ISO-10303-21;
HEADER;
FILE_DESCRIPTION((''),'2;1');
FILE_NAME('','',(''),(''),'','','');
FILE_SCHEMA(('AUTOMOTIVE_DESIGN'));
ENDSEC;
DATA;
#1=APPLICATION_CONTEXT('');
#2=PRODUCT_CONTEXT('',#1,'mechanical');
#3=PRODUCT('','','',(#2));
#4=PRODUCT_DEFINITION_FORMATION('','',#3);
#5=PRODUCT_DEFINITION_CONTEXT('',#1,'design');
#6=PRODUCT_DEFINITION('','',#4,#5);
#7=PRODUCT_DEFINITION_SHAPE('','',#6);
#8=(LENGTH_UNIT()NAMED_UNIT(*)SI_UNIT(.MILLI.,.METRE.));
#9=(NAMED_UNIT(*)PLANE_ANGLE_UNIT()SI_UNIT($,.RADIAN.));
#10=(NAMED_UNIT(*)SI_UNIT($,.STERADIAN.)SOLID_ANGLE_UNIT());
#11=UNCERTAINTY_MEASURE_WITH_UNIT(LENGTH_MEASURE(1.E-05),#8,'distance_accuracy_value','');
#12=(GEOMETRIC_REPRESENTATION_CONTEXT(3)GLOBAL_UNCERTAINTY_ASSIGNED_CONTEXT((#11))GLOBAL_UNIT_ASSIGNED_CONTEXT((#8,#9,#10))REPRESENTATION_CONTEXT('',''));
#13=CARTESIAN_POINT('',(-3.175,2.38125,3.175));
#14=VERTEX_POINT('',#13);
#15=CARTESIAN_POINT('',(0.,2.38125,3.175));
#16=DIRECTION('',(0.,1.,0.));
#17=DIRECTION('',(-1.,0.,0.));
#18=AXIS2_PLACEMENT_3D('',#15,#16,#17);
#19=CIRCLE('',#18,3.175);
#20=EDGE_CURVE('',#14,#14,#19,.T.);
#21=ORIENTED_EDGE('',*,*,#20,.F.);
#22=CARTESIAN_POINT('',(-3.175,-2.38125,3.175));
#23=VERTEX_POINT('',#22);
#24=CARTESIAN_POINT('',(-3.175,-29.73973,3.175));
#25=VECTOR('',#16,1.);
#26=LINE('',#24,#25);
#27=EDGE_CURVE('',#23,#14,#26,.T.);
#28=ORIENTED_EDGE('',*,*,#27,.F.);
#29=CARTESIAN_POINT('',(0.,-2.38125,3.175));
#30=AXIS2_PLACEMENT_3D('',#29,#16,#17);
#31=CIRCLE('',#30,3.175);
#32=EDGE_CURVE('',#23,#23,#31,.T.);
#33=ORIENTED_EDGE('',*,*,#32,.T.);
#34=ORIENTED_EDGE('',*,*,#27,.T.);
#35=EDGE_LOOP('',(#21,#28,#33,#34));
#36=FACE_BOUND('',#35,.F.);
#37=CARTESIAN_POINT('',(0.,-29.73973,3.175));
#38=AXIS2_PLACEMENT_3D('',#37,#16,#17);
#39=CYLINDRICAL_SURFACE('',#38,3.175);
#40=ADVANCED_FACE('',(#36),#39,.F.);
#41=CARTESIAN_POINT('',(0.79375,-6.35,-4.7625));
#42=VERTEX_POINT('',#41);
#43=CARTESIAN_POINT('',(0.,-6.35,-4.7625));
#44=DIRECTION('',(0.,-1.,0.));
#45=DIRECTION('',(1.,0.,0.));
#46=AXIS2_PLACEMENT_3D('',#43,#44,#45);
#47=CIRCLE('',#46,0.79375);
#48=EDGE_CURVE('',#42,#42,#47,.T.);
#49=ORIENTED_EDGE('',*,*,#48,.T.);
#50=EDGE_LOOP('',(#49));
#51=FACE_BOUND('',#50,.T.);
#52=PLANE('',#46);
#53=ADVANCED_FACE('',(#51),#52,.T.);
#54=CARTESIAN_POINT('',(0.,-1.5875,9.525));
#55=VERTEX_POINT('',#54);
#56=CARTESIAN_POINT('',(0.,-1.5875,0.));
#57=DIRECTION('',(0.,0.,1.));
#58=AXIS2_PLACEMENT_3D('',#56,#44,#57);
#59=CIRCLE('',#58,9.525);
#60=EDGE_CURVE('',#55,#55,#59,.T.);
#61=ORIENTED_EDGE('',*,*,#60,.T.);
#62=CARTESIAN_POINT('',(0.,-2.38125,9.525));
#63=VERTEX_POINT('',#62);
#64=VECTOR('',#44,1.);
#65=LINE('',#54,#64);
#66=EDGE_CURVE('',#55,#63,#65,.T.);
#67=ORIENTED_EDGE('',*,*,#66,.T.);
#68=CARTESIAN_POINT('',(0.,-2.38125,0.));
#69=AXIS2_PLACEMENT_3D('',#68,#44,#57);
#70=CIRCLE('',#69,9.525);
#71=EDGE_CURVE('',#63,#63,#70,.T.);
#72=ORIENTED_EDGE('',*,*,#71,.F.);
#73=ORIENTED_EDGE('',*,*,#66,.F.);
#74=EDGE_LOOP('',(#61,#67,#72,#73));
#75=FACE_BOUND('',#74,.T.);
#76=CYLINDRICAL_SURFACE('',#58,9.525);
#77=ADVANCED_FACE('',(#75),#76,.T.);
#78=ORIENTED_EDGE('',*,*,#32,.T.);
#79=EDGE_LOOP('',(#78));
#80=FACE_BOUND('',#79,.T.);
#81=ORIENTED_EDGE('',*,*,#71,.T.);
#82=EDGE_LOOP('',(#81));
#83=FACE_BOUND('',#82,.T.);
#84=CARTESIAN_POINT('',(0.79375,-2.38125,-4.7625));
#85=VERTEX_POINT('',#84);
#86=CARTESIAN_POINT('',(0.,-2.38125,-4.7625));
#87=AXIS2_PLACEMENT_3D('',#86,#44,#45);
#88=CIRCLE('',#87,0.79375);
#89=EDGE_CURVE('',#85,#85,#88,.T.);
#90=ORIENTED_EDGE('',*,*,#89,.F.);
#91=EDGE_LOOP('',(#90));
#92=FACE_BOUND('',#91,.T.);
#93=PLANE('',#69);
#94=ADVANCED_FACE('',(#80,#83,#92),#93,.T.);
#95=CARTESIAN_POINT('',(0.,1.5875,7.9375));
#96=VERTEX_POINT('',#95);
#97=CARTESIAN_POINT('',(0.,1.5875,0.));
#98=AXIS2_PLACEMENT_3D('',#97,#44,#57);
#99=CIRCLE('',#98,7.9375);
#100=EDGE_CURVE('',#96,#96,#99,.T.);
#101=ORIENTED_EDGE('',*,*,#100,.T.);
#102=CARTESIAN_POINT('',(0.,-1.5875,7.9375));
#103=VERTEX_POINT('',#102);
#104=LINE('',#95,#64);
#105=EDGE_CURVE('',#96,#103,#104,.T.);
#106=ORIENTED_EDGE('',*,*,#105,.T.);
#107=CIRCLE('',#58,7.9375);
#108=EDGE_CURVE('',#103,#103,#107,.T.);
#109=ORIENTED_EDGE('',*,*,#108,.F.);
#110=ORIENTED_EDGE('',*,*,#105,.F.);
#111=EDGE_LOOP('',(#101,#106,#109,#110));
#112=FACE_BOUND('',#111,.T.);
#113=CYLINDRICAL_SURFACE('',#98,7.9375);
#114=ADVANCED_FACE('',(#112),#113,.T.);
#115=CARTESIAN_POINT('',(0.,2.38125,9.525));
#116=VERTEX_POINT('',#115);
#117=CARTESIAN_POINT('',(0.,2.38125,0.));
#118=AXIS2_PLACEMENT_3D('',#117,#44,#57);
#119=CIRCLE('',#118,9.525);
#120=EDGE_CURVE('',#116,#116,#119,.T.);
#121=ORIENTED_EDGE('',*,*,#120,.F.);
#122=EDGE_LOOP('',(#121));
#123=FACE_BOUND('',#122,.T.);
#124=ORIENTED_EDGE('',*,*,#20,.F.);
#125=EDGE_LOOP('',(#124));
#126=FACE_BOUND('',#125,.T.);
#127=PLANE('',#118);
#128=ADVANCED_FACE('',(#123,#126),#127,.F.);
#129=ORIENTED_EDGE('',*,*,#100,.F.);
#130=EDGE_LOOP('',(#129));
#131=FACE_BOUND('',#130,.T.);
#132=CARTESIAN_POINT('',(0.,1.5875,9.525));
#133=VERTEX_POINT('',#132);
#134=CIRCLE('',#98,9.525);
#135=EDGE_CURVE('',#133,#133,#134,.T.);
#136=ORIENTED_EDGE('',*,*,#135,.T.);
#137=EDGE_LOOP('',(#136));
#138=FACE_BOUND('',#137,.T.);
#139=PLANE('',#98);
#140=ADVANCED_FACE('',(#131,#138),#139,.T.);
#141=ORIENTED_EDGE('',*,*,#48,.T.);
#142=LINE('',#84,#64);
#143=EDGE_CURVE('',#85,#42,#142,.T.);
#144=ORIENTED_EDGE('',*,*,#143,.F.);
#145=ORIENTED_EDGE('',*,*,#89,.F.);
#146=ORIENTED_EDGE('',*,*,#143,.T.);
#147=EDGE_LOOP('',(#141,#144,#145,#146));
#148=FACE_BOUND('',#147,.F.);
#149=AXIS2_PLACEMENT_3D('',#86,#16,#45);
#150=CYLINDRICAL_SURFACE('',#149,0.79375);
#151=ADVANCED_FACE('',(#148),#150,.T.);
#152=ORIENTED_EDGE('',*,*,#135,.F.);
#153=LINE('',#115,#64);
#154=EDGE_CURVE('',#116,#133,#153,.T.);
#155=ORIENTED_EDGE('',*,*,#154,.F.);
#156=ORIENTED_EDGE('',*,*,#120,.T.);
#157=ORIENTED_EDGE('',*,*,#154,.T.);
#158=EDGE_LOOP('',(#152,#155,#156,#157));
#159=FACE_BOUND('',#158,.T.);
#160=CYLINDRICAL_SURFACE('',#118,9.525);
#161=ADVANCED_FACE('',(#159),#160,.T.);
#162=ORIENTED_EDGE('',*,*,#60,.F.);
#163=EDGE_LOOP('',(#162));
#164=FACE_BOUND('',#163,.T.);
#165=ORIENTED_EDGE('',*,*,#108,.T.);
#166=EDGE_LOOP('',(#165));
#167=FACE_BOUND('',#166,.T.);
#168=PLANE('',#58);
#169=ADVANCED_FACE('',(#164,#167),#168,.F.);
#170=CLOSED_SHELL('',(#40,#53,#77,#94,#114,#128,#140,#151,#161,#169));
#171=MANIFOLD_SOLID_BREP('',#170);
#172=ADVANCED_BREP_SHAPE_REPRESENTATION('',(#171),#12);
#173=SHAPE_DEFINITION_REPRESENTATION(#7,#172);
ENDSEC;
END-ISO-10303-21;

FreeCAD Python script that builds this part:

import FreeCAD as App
import Part
import Sketcher

V = App.Vector
Q = App.Units.Quantity

doc = App.newDocument("Part")
body = doc.addObject("PartDesign::Body", "Body")

sketch1 = doc.addObject("Sketcher::SketchObject", "Sketch")
body.addObject(sketch1)
sketch1.AttachmentSupport = (doc.YZ_Plane, [""])
sketch1.MapMode = "FlatFace"
sketch1.addGeometry([
    Part.LineSegment(V(-2.38125, 9.525, 0), V(-2.38125, 0, 0)),
    Part.LineSegment(V(-2.38125, 0, 0), V(2.38125, 0, 0)),
    Part.LineSegment(V(2.38125, 0, 0), V(2.38125, 9.525, 0)),
    Part.LineSegment(V(2.38125, 9.525, 0), V(1.5875, 9.525, 0)),
    Part.LineSegment(V(1.5875, 9.525, 0), V(1.5875, 7.9375, 0)),
    Part.LineSegment(V(1.5875, 7.9375, 0), V(-1.5875, 7.9375, 0)),
    Part.LineSegment(V(-1.5875, 7.9375, 0), V(-1.5875, 9.525, 0)),
    Part.LineSegment(V(-1.5875, 9.525, 0), V(-2.38125, 9.525, 0)),
], False)
sketch1.addConstraint([
    Sketcher.Constraint("Coincident", 0, 2, 1, 1),
    Sketcher.Constraint("Coincident", 1, 2, 2, 1),
    Sketcher.Constraint("Coincident", 2, 2, 3, 1),
    Sketcher.Constraint("Coincident", 3, 2, 4, 1),
    Sketcher.Constraint("Coincident", 4, 2, 5, 1),
    Sketcher.Constraint("Coincident", 5, 2, 6, 1),
    Sketcher.Constraint("Coincident", 6, 2, 7, 1),
    Sketcher.Constraint("Coincident", 7, 2, 0, 1),
    Sketcher.Constraint("Vertical", 0),
    Sketcher.Constraint("Horizontal", 1),
    Sketcher.Constraint("Vertical", 2),
    Sketcher.Constraint("Horizontal", 3),
    Sketcher.Constraint("Vertical", 4),
    Sketcher.Constraint("Horizontal", 5),
    Sketcher.Constraint("Vertical", 6),
    Sketcher.Constraint("Horizontal", 7),
    Sketcher.Constraint("Symmetric", 0, 2, 1, 2, -1, 1),
    Sketcher.Constraint("Symmetric", 3, 2, 6, 2, -2),
    Sketcher.Constraint("DistanceX", 1, 1, 1, 2, Q("0.1875 in")),
    Sketcher.Constraint("DistanceX", 3, 2, 3, 1, Q("0.03125 in")),
    Sketcher.Constraint("DistanceY", 0, 2, 0, 1, Q("0.375 in")),
    Sketcher.Constraint("DistanceY", 4, 2, 4, 1, Q("0.0625 in")),
])
revolution = doc.addObject("PartDesign::Revolution", "Revolution")
body.addObject(revolution)
revolution.Profile = sketch1
revolution.ReferenceAxis = (sketch1, ["H_Axis"])
revolution.Angle = 360

sketch2 = doc.addObject("Sketcher::SketchObject", "Sketch001")
body.addObject(sketch2)
sketch2.AttachmentSupport = (doc.XZ_Plane, [""])
sketch2.MapMode = "FlatFace"
sketch2.AttachmentOffset = App.Placement(V(0, 0, 0.09375 * 25.4), App.Rotation())
sketch2.addGeometry(Part.Circle(V(0, 3.175, 0), V(0, 0, 1), 3.175), False)
sketch2.addConstraint([
    Sketcher.Constraint("PointOnObject", 0, 3, -2),
    Sketcher.Constraint("Diameter", 0, Q("0.25 in")),
    Sketcher.Constraint("DistanceY", -1, 1, 0, 3, Q("0.125 in")),
])
doc.recompute()
hole = doc.addObject("PartDesign::Hole", "Hole")
body.addObject(hole)
hole.Profile = sketch2
hole.ThreadType = "None"
hole.Diameter = Q("0.25 in")
hole.DepthType = "ThroughAll"

sketch3 = doc.addObject("Sketcher::SketchObject", "Sketch002")
body.addObject(sketch3)
sketch3.AttachmentSupport = (doc.XZ_Plane, [""])
sketch3.MapMode = "FlatFace"
sketch3.AttachmentOffset = App.Placement(V(0, 0, 0.09375 * 25.4), App.Rotation())
sketch3.addGeometry(Part.Circle(V(0, -4.7625, 0), V(0, 0, 1), 0.79375), False)
sketch3.addConstraint([
    Sketcher.Constraint("PointOnObject", 0, 3, -2),
    Sketcher.Constraint("Diameter", 0, Q("0.0625 in")),
    Sketcher.Constraint("DistanceY", 0, 3, -1, 1, Q("0.1875 in")),
])
pad1 = doc.addObject("PartDesign::Pad", "Pad")
body.addObject(pad1)
pad1.Profile = sketch3
pad1.Length = Q("0.15625 in")

doc.recompute()
